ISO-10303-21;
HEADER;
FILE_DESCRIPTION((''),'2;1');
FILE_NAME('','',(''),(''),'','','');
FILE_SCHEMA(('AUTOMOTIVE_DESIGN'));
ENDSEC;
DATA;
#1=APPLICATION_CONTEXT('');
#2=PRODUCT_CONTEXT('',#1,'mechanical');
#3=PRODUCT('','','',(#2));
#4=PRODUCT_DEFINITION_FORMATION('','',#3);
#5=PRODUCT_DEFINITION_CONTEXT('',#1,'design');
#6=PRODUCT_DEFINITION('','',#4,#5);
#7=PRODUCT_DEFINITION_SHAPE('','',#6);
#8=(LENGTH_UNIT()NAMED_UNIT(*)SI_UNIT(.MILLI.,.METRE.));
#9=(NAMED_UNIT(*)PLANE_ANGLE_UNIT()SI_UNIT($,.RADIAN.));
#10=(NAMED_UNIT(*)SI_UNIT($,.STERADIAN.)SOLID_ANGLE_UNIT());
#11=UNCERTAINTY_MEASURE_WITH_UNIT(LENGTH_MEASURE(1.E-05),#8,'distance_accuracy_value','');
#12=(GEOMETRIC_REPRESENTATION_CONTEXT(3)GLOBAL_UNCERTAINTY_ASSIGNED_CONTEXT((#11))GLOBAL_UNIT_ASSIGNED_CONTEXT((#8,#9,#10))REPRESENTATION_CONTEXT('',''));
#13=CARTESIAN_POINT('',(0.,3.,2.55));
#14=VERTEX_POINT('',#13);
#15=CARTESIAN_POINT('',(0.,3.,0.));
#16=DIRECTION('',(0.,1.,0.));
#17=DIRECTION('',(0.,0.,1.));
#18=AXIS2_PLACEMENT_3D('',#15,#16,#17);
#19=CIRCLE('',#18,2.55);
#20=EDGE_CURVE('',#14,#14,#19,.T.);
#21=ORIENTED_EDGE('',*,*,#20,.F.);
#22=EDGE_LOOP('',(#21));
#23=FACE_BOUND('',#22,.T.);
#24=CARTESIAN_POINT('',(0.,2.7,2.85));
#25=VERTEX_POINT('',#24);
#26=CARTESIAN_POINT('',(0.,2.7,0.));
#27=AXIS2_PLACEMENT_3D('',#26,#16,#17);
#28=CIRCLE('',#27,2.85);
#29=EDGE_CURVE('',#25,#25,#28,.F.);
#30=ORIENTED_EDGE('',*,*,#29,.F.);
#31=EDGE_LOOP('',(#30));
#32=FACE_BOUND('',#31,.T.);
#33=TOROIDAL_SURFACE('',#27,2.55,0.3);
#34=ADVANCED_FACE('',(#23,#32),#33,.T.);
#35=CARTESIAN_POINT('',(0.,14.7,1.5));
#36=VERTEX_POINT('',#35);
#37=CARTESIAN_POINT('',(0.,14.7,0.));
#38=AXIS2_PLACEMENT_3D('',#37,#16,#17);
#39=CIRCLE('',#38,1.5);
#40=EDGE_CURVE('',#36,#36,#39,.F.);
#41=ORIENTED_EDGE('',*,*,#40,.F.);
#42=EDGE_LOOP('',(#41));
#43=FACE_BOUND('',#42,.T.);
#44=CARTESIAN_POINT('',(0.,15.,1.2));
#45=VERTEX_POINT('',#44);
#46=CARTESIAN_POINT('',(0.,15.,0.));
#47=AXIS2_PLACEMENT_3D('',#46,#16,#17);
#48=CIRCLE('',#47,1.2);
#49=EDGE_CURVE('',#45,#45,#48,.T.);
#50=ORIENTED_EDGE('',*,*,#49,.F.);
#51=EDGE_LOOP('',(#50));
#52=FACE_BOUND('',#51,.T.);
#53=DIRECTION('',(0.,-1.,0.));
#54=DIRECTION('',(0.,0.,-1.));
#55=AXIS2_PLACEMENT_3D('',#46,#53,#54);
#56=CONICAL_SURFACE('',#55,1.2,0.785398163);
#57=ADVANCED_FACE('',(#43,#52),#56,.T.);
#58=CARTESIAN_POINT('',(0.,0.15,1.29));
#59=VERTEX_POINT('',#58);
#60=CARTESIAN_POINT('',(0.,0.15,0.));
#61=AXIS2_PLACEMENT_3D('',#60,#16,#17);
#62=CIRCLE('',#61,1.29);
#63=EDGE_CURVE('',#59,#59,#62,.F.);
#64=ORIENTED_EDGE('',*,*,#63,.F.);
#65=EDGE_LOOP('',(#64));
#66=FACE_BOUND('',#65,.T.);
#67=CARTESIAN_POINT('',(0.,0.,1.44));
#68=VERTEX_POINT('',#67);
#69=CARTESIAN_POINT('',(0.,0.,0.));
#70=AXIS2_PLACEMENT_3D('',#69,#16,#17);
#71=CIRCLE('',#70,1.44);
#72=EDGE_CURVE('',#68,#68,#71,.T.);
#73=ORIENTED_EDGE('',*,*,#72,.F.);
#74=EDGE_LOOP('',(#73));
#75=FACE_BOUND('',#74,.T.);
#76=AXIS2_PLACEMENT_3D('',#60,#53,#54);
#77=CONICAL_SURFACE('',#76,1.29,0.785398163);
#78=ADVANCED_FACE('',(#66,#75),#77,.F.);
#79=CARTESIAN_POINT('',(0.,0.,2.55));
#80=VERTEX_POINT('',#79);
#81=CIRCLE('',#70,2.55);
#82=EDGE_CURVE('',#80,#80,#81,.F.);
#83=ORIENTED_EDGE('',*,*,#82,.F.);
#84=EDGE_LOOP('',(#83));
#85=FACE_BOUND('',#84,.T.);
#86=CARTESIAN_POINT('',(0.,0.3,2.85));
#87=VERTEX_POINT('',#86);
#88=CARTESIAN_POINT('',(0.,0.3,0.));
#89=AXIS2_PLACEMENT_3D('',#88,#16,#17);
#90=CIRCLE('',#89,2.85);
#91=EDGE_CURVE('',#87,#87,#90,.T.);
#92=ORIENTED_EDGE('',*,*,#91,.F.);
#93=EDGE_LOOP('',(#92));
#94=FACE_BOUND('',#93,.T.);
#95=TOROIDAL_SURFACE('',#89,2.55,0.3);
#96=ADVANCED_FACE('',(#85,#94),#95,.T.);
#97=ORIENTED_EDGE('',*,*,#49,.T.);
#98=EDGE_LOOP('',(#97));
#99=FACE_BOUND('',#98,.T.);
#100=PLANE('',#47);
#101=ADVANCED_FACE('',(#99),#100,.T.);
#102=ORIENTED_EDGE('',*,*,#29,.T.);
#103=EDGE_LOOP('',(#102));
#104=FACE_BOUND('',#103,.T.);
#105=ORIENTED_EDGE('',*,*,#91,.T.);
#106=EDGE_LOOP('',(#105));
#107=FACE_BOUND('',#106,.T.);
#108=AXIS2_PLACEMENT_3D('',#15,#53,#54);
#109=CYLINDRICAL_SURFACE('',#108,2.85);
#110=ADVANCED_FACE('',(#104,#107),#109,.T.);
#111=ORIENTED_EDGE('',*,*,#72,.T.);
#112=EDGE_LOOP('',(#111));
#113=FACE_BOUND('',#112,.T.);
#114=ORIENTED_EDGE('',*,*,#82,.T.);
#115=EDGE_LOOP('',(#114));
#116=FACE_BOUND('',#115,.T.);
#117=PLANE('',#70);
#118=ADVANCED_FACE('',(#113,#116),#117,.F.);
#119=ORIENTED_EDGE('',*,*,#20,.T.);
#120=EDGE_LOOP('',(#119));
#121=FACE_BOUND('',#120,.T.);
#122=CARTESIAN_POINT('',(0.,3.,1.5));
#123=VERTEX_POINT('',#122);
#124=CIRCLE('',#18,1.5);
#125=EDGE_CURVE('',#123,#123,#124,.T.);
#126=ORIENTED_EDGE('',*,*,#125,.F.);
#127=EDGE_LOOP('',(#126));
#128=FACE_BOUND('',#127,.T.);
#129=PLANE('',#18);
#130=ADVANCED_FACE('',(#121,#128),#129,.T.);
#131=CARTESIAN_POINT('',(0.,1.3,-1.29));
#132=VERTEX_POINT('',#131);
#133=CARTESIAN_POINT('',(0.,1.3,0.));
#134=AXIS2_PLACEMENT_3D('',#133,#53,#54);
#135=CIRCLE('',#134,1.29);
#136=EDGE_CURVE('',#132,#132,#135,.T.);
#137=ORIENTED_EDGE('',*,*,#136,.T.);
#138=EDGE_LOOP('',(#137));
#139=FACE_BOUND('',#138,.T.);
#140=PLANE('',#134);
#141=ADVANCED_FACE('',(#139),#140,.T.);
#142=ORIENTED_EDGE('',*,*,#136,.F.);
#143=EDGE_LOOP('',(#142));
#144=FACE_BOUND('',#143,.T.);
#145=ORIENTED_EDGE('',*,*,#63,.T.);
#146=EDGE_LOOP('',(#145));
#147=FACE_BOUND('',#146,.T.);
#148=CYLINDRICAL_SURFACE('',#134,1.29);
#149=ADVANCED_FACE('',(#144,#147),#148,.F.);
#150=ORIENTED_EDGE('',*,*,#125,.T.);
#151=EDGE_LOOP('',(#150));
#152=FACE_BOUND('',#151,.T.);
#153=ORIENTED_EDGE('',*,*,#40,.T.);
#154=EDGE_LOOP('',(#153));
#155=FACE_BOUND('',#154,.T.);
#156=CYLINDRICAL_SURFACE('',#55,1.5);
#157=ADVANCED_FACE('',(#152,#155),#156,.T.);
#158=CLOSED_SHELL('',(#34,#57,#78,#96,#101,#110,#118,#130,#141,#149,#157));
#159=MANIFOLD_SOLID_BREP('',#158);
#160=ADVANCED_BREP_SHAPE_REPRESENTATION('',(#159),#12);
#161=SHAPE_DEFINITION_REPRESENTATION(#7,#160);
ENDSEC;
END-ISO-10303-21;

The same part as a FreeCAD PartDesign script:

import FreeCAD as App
import Part
import Sketcher
Q = App.Units.Quantity


def edges_at(feature, points):
    """Names of the edges that pass closest to the given points."""
    edges = feature.Shape.Edges
    near = lambda p: min(range(len(edges)), key=lambda i: edges[i].distToShape(Part.Vertex(*p))[0])
    return sorted({f"Edge{near(p) + 1}" for p in points})

doc = App.newDocument("Part")
params = doc.addObject("Spreadsheet::Sheet", "Params")
for row, (alias, value) in enumerate([
    ("sketch1_diameter", "5.7 mm"),
    ("pad1_length", "3 mm"),
    ("sketch2_diameter", "3 mm"),
    ("pad2_length", "12 mm"),
    ("sketch3_diameter", "2.58 mm"),
    ("pocket1_length", "1.3 mm"),
    ("fillet_radius", "0.3 mm"),
    ("chamfer_size", "0.3 mm"),
    ("chamfer2_size", "0.15 mm"),
], start=1):
    params.set(f"A{row}", alias)
    params.set(f"B{row}", "=" + value)
    params.setAlias(f"B{row}", alias)

body = doc.addObject("PartDesign::Body", "Body")

sketch1 = body.newObject("Sketcher::SketchObject", "Sketch")
sketch1.AttachmentSupport = (doc.getObject("XZ_Plane"), [""])
sketch1.MapMode = "FlatFace"
sketch1.addGeometry(Part.Circle(App.Vector(0, 0, 0), App.Vector(0, 0, 1), 2.85), False)
sketch1.addConstraint(Sketcher.Constraint("Coincident", 0, 3, -1, 1))
sketch1.addConstraint(Sketcher.Constraint("Diameter", 0, Q("5.7 mm")))
sketch1.setExpression("Constraints[1]", "Params.sketch1_diameter")
pad1 = body.newObject("PartDesign::Pad", "Pad")
pad1.Profile = sketch1
pad1.setExpression("Length", "Params.pad1_length")
pad1.Reversed = True

sketch2 = body.newObject("Sketcher::SketchObject", "Sketch001")
sketch2.AttachmentSupport = (doc.getObject("XZ_Plane"), [""])
sketch2.MapMode = "FlatFace"
sketch2.AttachmentOffset = App.Placement(App.Vector(0, 0, -3), App.Rotation())
sketch2.addGeometry(Part.Circle(App.Vector(0, 0, 0), App.Vector(0, 0, 1), 1.5), False)
sketch2.addConstraint(Sketcher.Constraint("Coincident", 0, 3, -1, 1))
sketch2.addConstraint(Sketcher.Constraint("Diameter", 0, Q("3 mm")))
sketch2.setExpression("Constraints[1]", "Params.sketch2_diameter")
pad2 = body.newObject("PartDesign::Pad", "Pad001")
pad2.Profile = sketch2
pad2.setExpression("Length", "Params.pad2_length")
pad2.Reversed = True

sketch3 = body.newObject("Sketcher::SketchObject", "Sketch002")
sketch3.AttachmentSupport = (doc.getObject("XZ_Plane"), [""])
sketch3.MapMode = "FlatFace"
sketch3.addGeometry(Part.Circle(App.Vector(0, 0, 0), App.Vector(0, 0, 1), 1.29), False)
sketch3.addConstraint(Sketcher.Constraint("Coincident", 0, 3, -1, 1))
sketch3.addConstraint(Sketcher.Constraint("Diameter", 0, Q("2.58 mm")))
sketch3.setExpression("Constraints[1]", "Params.sketch3_diameter")
pocket1 = body.newObject("PartDesign::Pocket", "Pocket")
pocket1.Profile = sketch3
pocket1.setExpression("Length", "Params.pocket1_length")
doc.recompute()

fillet = body.newObject("PartDesign::Fillet", "Fillet")
fillet.Base = (pocket1, edges_at(pocket1, [(0, 0, -2.85), (0, 3, -2.85)]))
fillet.setExpression("Radius", "Params.fillet_radius")
doc.recompute()

chamfer = body.newObject("PartDesign::Chamfer", "Chamfer")
chamfer.Base = (fillet, edges_at(fillet, [(0, 15, -1.5)]))
chamfer.setExpression("Size", "Params.chamfer_size")
doc.recompute()

chamfer2 = body.newObject("PartDesign::Chamfer", "Chamfer001")
chamfer2.Base = (chamfer, edges_at(chamfer, [(0, 0, 1.29)]))
chamfer2.setExpression("Size", "Params.chamfer2_size")

doc.recompute()
